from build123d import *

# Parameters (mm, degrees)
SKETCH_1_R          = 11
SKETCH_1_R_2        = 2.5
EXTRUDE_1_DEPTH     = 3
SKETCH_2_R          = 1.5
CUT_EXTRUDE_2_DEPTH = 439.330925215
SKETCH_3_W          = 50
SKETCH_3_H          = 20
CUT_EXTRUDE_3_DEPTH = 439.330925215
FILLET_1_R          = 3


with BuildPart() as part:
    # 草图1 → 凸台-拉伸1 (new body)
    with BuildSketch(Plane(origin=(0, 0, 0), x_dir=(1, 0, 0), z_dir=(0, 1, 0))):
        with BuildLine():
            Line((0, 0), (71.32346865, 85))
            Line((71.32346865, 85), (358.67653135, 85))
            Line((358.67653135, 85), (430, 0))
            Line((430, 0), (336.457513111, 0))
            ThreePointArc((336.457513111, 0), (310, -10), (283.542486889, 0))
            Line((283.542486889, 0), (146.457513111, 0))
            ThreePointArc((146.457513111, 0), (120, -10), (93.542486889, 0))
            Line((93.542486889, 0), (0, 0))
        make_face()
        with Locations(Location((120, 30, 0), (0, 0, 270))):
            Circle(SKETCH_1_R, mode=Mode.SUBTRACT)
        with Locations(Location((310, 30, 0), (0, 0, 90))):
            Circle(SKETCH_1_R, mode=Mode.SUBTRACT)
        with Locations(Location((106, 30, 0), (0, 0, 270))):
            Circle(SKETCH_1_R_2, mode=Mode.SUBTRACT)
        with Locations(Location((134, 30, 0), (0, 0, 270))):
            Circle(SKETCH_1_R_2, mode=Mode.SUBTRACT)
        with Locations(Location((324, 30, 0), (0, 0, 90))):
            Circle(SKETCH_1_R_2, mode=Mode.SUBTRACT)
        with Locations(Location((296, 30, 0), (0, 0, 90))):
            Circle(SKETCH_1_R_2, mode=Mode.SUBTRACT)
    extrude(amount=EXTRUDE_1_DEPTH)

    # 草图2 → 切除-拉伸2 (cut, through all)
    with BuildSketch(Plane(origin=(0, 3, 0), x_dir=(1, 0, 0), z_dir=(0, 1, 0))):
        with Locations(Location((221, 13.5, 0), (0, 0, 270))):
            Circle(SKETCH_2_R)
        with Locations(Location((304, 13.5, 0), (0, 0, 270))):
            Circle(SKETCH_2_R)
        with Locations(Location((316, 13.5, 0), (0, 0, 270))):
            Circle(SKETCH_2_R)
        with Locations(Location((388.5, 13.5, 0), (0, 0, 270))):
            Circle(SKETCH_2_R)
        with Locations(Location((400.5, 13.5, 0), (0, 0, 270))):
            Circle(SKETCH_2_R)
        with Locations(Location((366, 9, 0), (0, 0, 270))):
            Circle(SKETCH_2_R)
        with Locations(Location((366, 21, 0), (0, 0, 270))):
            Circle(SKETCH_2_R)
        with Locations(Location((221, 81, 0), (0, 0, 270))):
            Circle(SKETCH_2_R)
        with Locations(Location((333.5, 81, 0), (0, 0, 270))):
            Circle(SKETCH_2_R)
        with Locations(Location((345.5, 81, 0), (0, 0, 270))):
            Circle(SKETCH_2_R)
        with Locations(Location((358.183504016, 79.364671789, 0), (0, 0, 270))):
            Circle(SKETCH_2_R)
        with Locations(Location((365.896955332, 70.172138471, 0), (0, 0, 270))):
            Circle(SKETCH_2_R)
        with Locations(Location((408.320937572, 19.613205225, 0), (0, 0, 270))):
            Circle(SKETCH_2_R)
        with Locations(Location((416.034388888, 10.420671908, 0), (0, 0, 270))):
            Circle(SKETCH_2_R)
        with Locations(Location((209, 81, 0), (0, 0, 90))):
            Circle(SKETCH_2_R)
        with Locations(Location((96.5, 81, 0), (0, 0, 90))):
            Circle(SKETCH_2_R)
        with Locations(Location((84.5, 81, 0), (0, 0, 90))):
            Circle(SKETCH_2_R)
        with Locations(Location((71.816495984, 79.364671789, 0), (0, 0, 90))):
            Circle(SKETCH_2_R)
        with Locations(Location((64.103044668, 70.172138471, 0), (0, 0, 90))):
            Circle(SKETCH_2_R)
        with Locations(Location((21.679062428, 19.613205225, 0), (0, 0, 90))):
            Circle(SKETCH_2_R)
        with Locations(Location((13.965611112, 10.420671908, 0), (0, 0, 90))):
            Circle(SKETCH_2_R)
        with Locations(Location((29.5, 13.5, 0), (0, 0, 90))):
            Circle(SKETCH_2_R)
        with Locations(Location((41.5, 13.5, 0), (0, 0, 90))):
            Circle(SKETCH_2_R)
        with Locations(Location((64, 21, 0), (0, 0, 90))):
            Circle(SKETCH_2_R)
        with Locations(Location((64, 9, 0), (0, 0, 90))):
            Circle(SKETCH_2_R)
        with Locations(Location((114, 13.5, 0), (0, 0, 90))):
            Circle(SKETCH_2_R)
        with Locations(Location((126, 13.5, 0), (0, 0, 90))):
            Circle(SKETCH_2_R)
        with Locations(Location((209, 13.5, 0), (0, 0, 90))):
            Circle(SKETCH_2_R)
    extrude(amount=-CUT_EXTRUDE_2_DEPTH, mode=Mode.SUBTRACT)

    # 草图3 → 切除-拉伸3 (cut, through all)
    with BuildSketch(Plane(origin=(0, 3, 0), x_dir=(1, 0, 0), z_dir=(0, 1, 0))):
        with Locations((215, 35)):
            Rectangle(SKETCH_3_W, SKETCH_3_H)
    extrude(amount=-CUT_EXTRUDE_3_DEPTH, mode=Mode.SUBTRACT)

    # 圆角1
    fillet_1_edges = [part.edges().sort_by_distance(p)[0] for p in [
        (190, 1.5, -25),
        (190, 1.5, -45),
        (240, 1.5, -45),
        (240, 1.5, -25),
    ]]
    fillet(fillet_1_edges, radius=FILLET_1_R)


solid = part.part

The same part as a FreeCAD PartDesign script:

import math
import FreeCAD as App
import Part
import Sketcher

V = App.Vector
Q = App.Units.Quantity


def edges_at(feature, points):
    """Names of the edges that pass closest to the given points."""
    edges = feature.Shape.Edges
    near = lambda p: min(range(len(edges)), key=lambda i: edges[i].distToShape(Part.Vertex(*p))[0])
    return sorted({f"Edge{near(p) + 1}" for p in points})

doc = App.newDocument("Part")
body = doc.addObject("PartDesign::Body", "Body")

sketch1 = body.newObject("Sketcher::SketchObject", "Sketch")
sketch1.AttachmentSupport = (doc.getObject("XZ_Plane"), [""])
sketch1.MapMode = "FlatFace"
sketch1.addGeometry(Part.LineSegment(V(71.3, -85, 0), V(0, 0, 0)), False)
sketch1.addGeometry(Part.LineSegment(V(0, 0, 0), V(93.5, 0, 0)), False)
sketch1.addGeometry(Part.ArcOfCircle(Part.Circle(V(120, -30, 0), V(0, 0, 1), 40), math.radians(49), math.radians(131)), False)
sketch1.addGeometry(Part.LineSegment(V(146.5, 0, 0), V(283.5, 0, 0)), False)
sketch1.addGeometry(Part.ArcOfCircle(Part.Circle(V(310, -30, 0), V(0, 0, 1), 40), math.radians(49), math.radians(131)), False)
sketch1.addGeometry(Part.LineSegment(V(336.5, 0, 0), V(430, 0, 0)), False)
sketch1.addGeometry(Part.LineSegment(V(430, 0, 0), V(358.7, -85, 0)), False)
sketch1.addGeometry(Part.LineSegment(V(358.7, -85, 0), V(71.3, -85, 0)), False)
sketch1.addGeometry(Part.Circle(V(324, -30, 0), V(0, 0, 1), 2.5), False)
sketch1.addGeometry(Part.Circle(V(310, -30, 0), V(0, 0, 1), 11), False)
sketch1.addGeometry(Part.Circle(V(296, -30, 0), V(0, 0, 1), 2.5), False)
sketch1.addGeometry(Part.Circle(V(134, -30, 0), V(0, 0, 1), 2.5), False)
sketch1.addGeometry(Part.Circle(V(120, -30, 0), V(0, 0, 1), 11), False)
sketch1.addGeometry(Part.Circle(V(106, -30, 0), V(0, 0, 1), 2.5), False)
sketch1.addConstraint(Sketcher.Constraint("Coincident", 0, 2, 1, 1))
sketch1.addConstraint(Sketcher.Constraint("Coincident", 1, 2, 2, 2))
sketch1.addConstraint(Sketcher.Constraint("Coincident", 2, 1, 3, 1))
sketch1.addConstraint(Sketcher.Constraint("Coincident", 3, 2, 4, 2))
sketch1.addConstraint(Sketcher.Constraint("Coincident", 4, 1, 5, 1))
sketch1.addConstraint(Sketcher.Constraint("Coincident", 5, 2, 6, 1))
sketch1.addConstraint(Sketcher.Constraint("Coincident", 6, 2, 7, 1))
sketch1.addConstraint(Sketcher.Constraint("Coincident", 7, 2, 0, 1))
sketch1.addConstraint(Sketcher.Constraint("Horizontal", 1))
sketch1.addConstraint(Sketcher.Constraint("Horizontal", 3))
sketch1.addConstraint(Sketcher.Constraint("Horizontal", 5))
sketch1.addConstraint(Sketcher.Constraint("Horizontal", 7))
sketch1.addConstraint(Sketcher.Constraint("Coincident", 0, 2, -1, 1))
sketch1.addConstraint(Sketcher.Constraint("Coincident", 9, 3, 4, 3))
sketch1.addConstraint(Sketcher.Constraint("Coincident", 12, 3, 2, 3))
sketch1.addConstraint(Sketcher.Constraint("Equal", 2, 4))
sketch1.addConstraint(Sketcher.Constraint("Equal", 8, 10))
sketch1.addConstraint(Sketcher.Constraint("Equal", 10, 11))
sketch1.addConstraint(Sketcher.Constraint("Equal", 9, 12))
sketch1.addConstraint(Sketcher.Constraint("Equal", 11, 13))
sketch1.addConstraint(Sketcher.Constraint("PointOnObject", 2, 1, -1))
sketch1.addConstraint(Sketcher.Constraint("PointOnObject", 4, 1, -1))
sketch1.addConstraint(Sketcher.Constraint("Horizontal", 2, 3, 4, 3))
sketch1.addConstraint(Sketcher.Constraint("Horizontal", 4, 3, 8, 3))
sketch1.addConstraint(Sketcher.Constraint("Horizontal", 9, 3, 10, 3))
sketch1.addConstraint(Sketcher.Constraint("Horizontal", 10, 3, 11, 3))
sketch1.addConstraint(Sketcher.Constraint("Horizontal", 12, 3, 13, 3))
sketch1.addConstraint(Sketcher.Constraint("Equal", 1, 5))
sketch1.addConstraint(Sketcher.Constraint("Equal", 0, 6))
sketch1.addConstraint(Sketcher.Constraint("Diameter", 8, 5.0))
sketch1.addConstraint(Sketcher.Constraint("Diameter", 9, 22.0))
sketch1.addConstraint(Sketcher.Constraint("Radius", 2, 40.0))
sketch1.addConstraint(Sketcher.Constraint("Angle", 0, Q("130 deg")))
sketch1.addConstraint(Sketcher.Constraint("DistanceX", -1, 1, 2, 3, 120.0))
sketch1.addConstraint(Sketcher.Constraint("DistanceY", 2, 3, -1, 1, 30.0))
sketch1.addConstraint(Sketcher.Constraint("DistanceX", -1, 1, 4, 3, 310.0))
sketch1.addConstraint(Sketcher.Constraint("DistanceX", -1, 1, 8, 3, 324.0))
sketch1.addConstraint(Sketcher.Constraint("DistanceX", -1, 1, 10, 3, 296.0))
sketch1.addConstraint(Sketcher.Constraint("DistanceX", -1, 1, 11, 3, 134.0))
sketch1.addConstraint(Sketcher.Constraint("DistanceX", -1, 1, 13, 3, 106.0))
sketch1.addConstraint(Sketcher.Constraint("DistanceY", 6, 2, -1, 1, 85.0))
pad1 = body.newObject("PartDesign::Pad", "Pad")
pad1.Profile = sketch1
pad1.Length = 3
pad1.Reversed = True

sketch2 = body.newObject("Sketcher::SketchObject", "Sketch001")
sketch2.AttachmentSupport = (doc.getObject("XZ_Plane"), [""])
sketch2.MapMode = "FlatFace"
sketch2.AttachmentOffset = App.Placement(V(0, 0, -3), App.Rotation())
sketch2.addGeometry(Part.Circle(V(221, -13.5, 0), V(0, 0, 1), 1.5), False)
sketch2.addGeometry(Part.Circle(V(304, -13.5, 0), V(0, 0, 1), 1.5), False)
sketch2.addGeometry(Part.Circle(V(316, -13.5, 0), V(0, 0, 1), 1.5), False)
sketch2.addGeometry(Part.Circle(V(388.5, -13.5, 0), V(0, 0, 1), 1.5), False)
sketch2.addGeometry(Part.Circle(V(400.5, -13.5, 0), V(0, 0, 1), 1.5), False)
sketch2.addGeometry(Part.Circle(V(366, -9, 0), V(0, 0, 1), 1.5), False)
sketch2.addGeometry(Part.Circle(V(366, -21, 0), V(0, 0, 1), 1.5), False)
sketch2.addGeometry(Part.Circle(V(221, -81, 0), V(0, 0, 1), 1.5), False)
sketch2.addGeometry(Part.Circle(V(333.5, -81, 0), V(0, 0, 1), 1.5), False)
sketch2.addGeometry(Part.Circle(V(345.5, -81, 0), V(0, 0, 1), 1.5), False)
sketch2.addGeometry(Part.Circle(V(358.2, -79.4, 0), V(0, 0, 1), 1.5), False)
sketch2.addGeometry(Part.Circle(V(365.9, -70.2, 0), V(0, 0, 1), 1.5), False)
sketch2.addGeometry(Part.Circle(V(408.3, -19.6, 0), V(0, 0, 1), 1.5), False)
sketch2.addGeometry(Part.Circle(V(416, -10.4, 0), V(0, 0, 1), 1.5), False)
sketch2.addGeometry(Part.Circle(V(209, -81, 0), V(0, 0, 1), 1.5), False)
sketch2.addGeometry(Part.Circle(V(96.5, -81, 0), V(0, 0, 1), 1.5), False)
sketch2.addGeometry(Part.Circle(V(84.5, -81, 0), V(0, 0, 1), 1.5), False)
sketch2.addGeometry(Part.Circle(V(71.8, -79.4, 0), V(0, 0, 1), 1.5), False)
sketch2.addGeometry(Part.Circle(V(64.1, -70.2, 0), V(0, 0, 1), 1.5), False)
sketch2.addGeometry(Part.Circle(V(21.7, -19.6, 0), V(0, 0, 1), 1.5), False)
sketch2.addGeometry(Part.Circle(V(14, -10.4, 0), V(0, 0, 1), 1.5), False)
sketch2.addGeometry(Part.Circle(V(29.5, -13.5, 0), V(0, 0, 1), 1.5), False)
sketch2.addGeometry(Part.Circle(V(41.5, -13.5, 0), V(0, 0, 1), 1.5), False)
sketch2.addGeometry(Part.Circle(V(64, -21, 0), V(0, 0, 1), 1.5), False)
sketch2.addGeometry(Part.Circle(V(64, -9, 0), V(0, 0, 1), 1.5), False)
sketch2.addGeometry(Part.Circle(V(114, -13.5, 0), V(0, 0, 1), 1.5), False)
sketch2.addGeometry(Part.Circle(V(126, -13.5, 0), V(0, 0, 1), 1.5), False)
sketch2.addGeometry(Part.Circle(V(209, -13.5, 0), V(0, 0, 1), 1.5), False)
sketch2.addConstraint(Sketcher.Constraint("Equal", 0, 1))
sketch2.addConstraint(Sketcher.Constraint("Equal", 1, 2))
sketch2.addConstraint(Sketcher.Constraint("Equal", 2, 3))
sketch2.addConstraint(Sketcher.Constraint("Equal", 3, 4))
sketch2.addConstraint(Sketcher.Constraint("Equal", 4, 5))
sketch2.addConstraint(Sketcher.Constraint("Equal", 5, 6))
sketch2.addConstraint(Sketcher.Constraint("Equal", 6, 7))
sketch2.addConstraint(Sketcher.Constraint("Equal", 7, 8))
sketch2.addConstraint(Sketcher.Constraint("Equal", 8, 9))
sketch2.addConstraint(Sketcher.Constraint("Equal", 9, 10))
sketch2.addConstraint(Sketcher.Constraint("Equal", 10, 11))
sketch2.addConstraint(Sketcher.Constraint("Equal", 11, 12))
sketch2.addConstraint(Sketcher.Constraint("Equal", 12, 13))
sketch2.addConstraint(Sketcher.Constraint("Equal", 13, 14))
sketch2.addConstraint(Sketcher.Constraint("Equal", 14, 15))
sketch2.addConstraint(Sketcher.Constraint("Equal", 15, 16))
sketch2.addConstraint(Sketcher.Constraint("Equal", 16, 17))
sketch2.addConstraint(Sketcher.Constraint("Equal", 17, 18))
sketch2.addConstraint(Sketcher.Constraint("Equal", 18, 19))
sketch2.addConstraint(Sketcher.Constraint("Equal", 19, 20))
sketch2.addConstraint(Sketcher.Constraint("Equal", 20, 21))
sketch2.addConstraint(Sketcher.Constraint("Equal", 21, 22))
sketch2.addConstraint(Sketcher.Constraint("Equal", 22, 23))
sketch2.addConstraint(Sketcher.Constraint("Equal", 23, 24))
sketch2.addConstraint(Sketcher.Constraint("Equal", 24, 25))
sketch2.addConstraint(Sketcher.Constraint("Equal", 25, 26))
sketch2.addConstraint(Sketcher.Constraint("Equal", 26, 27))
sketch2.addConstraint(Sketcher.Constraint("Horizontal", 0, 3, 1, 3))
sketch2.addConstraint(Sketcher.Constraint("Horizontal", 1, 3, 2, 3))
sketch2.addConstraint(Sketcher.Constraint("Horizontal", 2, 3, 3, 3))
sketch2.addConstraint(Sketcher.Constraint("Horizontal", 3, 3, 4, 3))
sketch2.addConstraint(Sketcher.Constraint("Horizontal", 7, 3, 8, 3))
sketch2.addConstraint(Sketcher.Constraint("Horizontal", 8, 3, 9, 3))
sketch2.addConstraint(Sketcher.Constraint("Horizontal", 9, 3, 14, 3))
sketch2.addConstraint(Sketcher.Constraint("Horizontal", 14, 3, 15, 3))
sketch2.addConstraint(Sketcher.Constraint("Horizontal", 15, 3, 16, 3))
sketch2.addConstraint(Sketcher.Constraint("Horizontal", 10, 3, 17, 3))
sketch2.addConstraint(Sketcher.Constraint("Horizontal", 11, 3, 18, 3))
sketch2.addConstraint(Sketcher.Constraint("Horizontal", 12, 3, 19, 3))
sketch2.addConstraint(Sketcher.Constraint("Horizontal", 13, 3, 20, 3))
sketch2.addConstraint(Sketcher.Constraint("Horizontal", 4, 3, 21, 3))
sketch2.addConstraint(Sketcher.Constraint("Horizontal", 21, 3, 22, 3))
sketch2.addConstraint(Sketcher.Constraint("Horizontal", 6, 3, 23, 3))
sketch2.addConstraint(Sketcher.Constraint("Horizontal", 5, 3, 24, 3))
sketch2.addConstraint(Sketcher.Constraint("Horizontal", 22, 3, 25, 3))
sketch2.addConstraint(Sketcher.Constraint("Horizontal", 25, 3, 26, 3))
sketch2.addConstraint(Sketcher.Constraint("Horizontal", 26, 3, 27, 3))
sketch2.addConstraint(Sketcher.Constraint("Vertical", 5, 3, 6, 3))
sketch2.addConstraint(Sketcher.Constraint("Vertical", 0, 3, 7, 3))
sketch2.addConstraint(Sketcher.Constraint("Vertical", 23, 3, 24, 3))
sketch2.addConstraint(Sketcher.Constraint("Vertical", 14, 3, 27, 3))
sketch2.addConstraint(Sketcher.Constraint("Diameter", 0, 3.0))
sketch2.addConstraint(Sketcher.Constraint("DistanceX", -1, 1, 0, 3, 221.0))
sketch2.addConstraint(Sketcher.Constraint("DistanceX", -1, 1, 1, 3, 304.0))
sketch2.addConstraint(Sketcher.Constraint("DistanceX", -1, 1, 2, 3, 316.0))
sketch2.addConstraint(Sketcher.Constraint("DistanceX", -1, 1, 5, 3, 366.0))
sketch2.addConstraint(Sketcher.Constraint("DistanceY", 5, 3, -1, 1, 9.0))
sketch2.addConstraint(Sketcher.Constraint("DistanceY", 6, 3, -1, 1, 21.0))
sketch2.addConstraint(Sketcher.Constraint("DistanceY", 7, 3, -1, 1, 81.0))
sketch2.addConstraint(Sketcher.Constraint("DistanceX", -1, 1, 14, 3, 209.0))
sketch2.addConstraint(Sketcher.Constraint("DistanceX", -1, 1, 23, 3, 64.0))
sketch2.addConstraint(Sketcher.Constraint("DistanceX", -1, 1, 25, 3, 114.0))
sketch2.addConstraint(Sketcher.Constraint("DistanceX", -1, 1, 26, 3, 126.0))
sketch2.addConstraint(Sketcher.Constraint("DistanceX", 3, 3, 4, 3, 12.0))
sketch2.addConstraint(Sketcher.Constraint("DistanceX", 8, 3, 3, 3, 55.0))
sketch2.addConstraint(Sketcher.Constraint("DistanceX", 8, 3, 9, 3, 12.0))
sketch2.addConstraint(Sketcher.Constraint("DistanceX", 16, 3, 15, 3, 12.0))
sketch2.addConstraint(Sketcher.Constraint("DistanceX", 21, 3, 16, 3, 55.0))
sketch2.addConstraint(Sketcher.Constraint("DistanceX", 21, 3, 22, 3, 12.0))
sketch2.addConstraint(Sketcher.Constraint("DistanceY", 0, 3, -1, 1, 13.5))
sketch2.addConstraint(Sketcher.Constraint("DistanceX", -1, 1, 3, 3, 388.5))
sketch2.addConstraint(Sketcher.Constraint("DistanceX", -1, 1, 15, 3, 96.5))
sketch2.addConstraint(Sketcher.Constraint("DistanceY", 17, 3, 20, 3, 68.944))
sketch2.addConstraint(Sketcher.Constraint("DistanceY", 10, 3, -1, 1, 79.364672))
sketch2.addConstraint(Sketcher.Constraint("DistanceY", 11, 3, -1, 1, 70.172138))
sketch2.addConstraint(Sketcher.Constraint("DistanceX", -1, 1, 13, 3, 416.034389))
sketch2.addConstraint(Sketcher.Constraint("DistanceX", -1, 1, 20, 3, 13.965611))
sketch2.addConstraint(Sketcher.Constraint("DistanceX", 10, 3, 11, 3, 7.713451))
sketch2.addConstraint(Sketcher.Constraint("DistanceX", 12, 3, 13, 3, 7.713451))
sketch2.addConstraint(Sketcher.Constraint("DistanceX", 18, 3, 17, 3, 7.713451))
sketch2.addConstraint(Sketcher.Constraint("DistanceX", 20, 3, 19, 3, 7.713451))
sketch2.addConstraint(Sketcher.Constraint("DistanceX", -1, 1, 10, 3, 358.183504))
sketch2.addConstraint(Sketcher.Constraint("DistanceY", 12, 3, -1, 1, 19.613205))
sketch2.addConstraint(Sketcher.Constraint("DistanceX", -1, 1, 17, 3, 71.816496))
pocket1 = body.newObject("PartDesign::Pocket", "Pocket")
pocket1.Profile = sketch2
pocket1.Type = "ThroughAll"
pocket1.Reversed = True

sketch3 = body.newObject("Sketcher::SketchObject", "Sketch002")
sketch3.AttachmentSupport = (doc.getObject("XZ_Plane"), [""])
sketch3.MapMode = "FlatFace"
sketch3.AttachmentOffset = App.Placement(V(0, 0, -3), App.Rotation())
sketch3.addGeometry(Part.LineSegment(V(190, -45, 0), V(190, -25, 0)), False)
sketch3.addGeometry(Part.LineSegment(V(190, -25, 0), V(240, -25, 0)), False)
sketch3.addGeometry(Part.LineSegment(V(240, -25, 0), V(240, -45, 0)), False)
sketch3.addGeometry(Part.LineSegment(V(240, -45, 0), V(190, -45, 0)), False)
sketch3.addConstraint(Sketcher.Constraint("Coincident", 0, 2, 1, 1))
sketch3.addConstraint(Sketcher.Constraint("Coincident", 1, 2, 2, 1))
sketch3.addConstraint(Sketcher.Constraint("Coincident", 2, 2, 3, 1))
sketch3.addConstraint(Sketcher.Constraint("Coincident", 3, 2, 0, 1))
sketch3.addConstraint(Sketcher.Constraint("Vertical", 0))
sketch3.addConstraint(Sketcher.Constraint("Horizontal", 1))
sketch3.addConstraint(Sketcher.Constraint("Vertical", 2))
sketch3.addConstraint(Sketcher.Constraint("Horizontal", 3))
sketch3.addConstraint(Sketcher.Constraint("DistanceX", 1, 1, 1, 2, 50.0))
sketch3.addConstraint(Sketcher.Constraint("DistanceY", 0, 1, 0, 2, 20.0))
sketch3.addConstraint(Sketcher.Constraint("DistanceX", -1, 1, 0, 2, 190.0))
sketch3.addConstraint(Sketcher.Constraint("DistanceY", 0, 2, -1, 1, 25.0))
pocket2 = body.newObject("PartDesign::Pocket", "Pocket001")
pocket2.Profile = sketch3
pocket2.Type = "ThroughAll"
pocket2.Reversed = True
doc.recompute()

fillet = body.newObject("PartDesign::Fillet", "Fillet")
fillet.Base = (pocket2, edges_at(pocket2, [
    (190, 1.5, -25),
    (190, 1.5, -45),
    (240, 1.5, -45),
    (240, 1.5, -25),
]))
fillet.Radius = 3

doc.recompute()
